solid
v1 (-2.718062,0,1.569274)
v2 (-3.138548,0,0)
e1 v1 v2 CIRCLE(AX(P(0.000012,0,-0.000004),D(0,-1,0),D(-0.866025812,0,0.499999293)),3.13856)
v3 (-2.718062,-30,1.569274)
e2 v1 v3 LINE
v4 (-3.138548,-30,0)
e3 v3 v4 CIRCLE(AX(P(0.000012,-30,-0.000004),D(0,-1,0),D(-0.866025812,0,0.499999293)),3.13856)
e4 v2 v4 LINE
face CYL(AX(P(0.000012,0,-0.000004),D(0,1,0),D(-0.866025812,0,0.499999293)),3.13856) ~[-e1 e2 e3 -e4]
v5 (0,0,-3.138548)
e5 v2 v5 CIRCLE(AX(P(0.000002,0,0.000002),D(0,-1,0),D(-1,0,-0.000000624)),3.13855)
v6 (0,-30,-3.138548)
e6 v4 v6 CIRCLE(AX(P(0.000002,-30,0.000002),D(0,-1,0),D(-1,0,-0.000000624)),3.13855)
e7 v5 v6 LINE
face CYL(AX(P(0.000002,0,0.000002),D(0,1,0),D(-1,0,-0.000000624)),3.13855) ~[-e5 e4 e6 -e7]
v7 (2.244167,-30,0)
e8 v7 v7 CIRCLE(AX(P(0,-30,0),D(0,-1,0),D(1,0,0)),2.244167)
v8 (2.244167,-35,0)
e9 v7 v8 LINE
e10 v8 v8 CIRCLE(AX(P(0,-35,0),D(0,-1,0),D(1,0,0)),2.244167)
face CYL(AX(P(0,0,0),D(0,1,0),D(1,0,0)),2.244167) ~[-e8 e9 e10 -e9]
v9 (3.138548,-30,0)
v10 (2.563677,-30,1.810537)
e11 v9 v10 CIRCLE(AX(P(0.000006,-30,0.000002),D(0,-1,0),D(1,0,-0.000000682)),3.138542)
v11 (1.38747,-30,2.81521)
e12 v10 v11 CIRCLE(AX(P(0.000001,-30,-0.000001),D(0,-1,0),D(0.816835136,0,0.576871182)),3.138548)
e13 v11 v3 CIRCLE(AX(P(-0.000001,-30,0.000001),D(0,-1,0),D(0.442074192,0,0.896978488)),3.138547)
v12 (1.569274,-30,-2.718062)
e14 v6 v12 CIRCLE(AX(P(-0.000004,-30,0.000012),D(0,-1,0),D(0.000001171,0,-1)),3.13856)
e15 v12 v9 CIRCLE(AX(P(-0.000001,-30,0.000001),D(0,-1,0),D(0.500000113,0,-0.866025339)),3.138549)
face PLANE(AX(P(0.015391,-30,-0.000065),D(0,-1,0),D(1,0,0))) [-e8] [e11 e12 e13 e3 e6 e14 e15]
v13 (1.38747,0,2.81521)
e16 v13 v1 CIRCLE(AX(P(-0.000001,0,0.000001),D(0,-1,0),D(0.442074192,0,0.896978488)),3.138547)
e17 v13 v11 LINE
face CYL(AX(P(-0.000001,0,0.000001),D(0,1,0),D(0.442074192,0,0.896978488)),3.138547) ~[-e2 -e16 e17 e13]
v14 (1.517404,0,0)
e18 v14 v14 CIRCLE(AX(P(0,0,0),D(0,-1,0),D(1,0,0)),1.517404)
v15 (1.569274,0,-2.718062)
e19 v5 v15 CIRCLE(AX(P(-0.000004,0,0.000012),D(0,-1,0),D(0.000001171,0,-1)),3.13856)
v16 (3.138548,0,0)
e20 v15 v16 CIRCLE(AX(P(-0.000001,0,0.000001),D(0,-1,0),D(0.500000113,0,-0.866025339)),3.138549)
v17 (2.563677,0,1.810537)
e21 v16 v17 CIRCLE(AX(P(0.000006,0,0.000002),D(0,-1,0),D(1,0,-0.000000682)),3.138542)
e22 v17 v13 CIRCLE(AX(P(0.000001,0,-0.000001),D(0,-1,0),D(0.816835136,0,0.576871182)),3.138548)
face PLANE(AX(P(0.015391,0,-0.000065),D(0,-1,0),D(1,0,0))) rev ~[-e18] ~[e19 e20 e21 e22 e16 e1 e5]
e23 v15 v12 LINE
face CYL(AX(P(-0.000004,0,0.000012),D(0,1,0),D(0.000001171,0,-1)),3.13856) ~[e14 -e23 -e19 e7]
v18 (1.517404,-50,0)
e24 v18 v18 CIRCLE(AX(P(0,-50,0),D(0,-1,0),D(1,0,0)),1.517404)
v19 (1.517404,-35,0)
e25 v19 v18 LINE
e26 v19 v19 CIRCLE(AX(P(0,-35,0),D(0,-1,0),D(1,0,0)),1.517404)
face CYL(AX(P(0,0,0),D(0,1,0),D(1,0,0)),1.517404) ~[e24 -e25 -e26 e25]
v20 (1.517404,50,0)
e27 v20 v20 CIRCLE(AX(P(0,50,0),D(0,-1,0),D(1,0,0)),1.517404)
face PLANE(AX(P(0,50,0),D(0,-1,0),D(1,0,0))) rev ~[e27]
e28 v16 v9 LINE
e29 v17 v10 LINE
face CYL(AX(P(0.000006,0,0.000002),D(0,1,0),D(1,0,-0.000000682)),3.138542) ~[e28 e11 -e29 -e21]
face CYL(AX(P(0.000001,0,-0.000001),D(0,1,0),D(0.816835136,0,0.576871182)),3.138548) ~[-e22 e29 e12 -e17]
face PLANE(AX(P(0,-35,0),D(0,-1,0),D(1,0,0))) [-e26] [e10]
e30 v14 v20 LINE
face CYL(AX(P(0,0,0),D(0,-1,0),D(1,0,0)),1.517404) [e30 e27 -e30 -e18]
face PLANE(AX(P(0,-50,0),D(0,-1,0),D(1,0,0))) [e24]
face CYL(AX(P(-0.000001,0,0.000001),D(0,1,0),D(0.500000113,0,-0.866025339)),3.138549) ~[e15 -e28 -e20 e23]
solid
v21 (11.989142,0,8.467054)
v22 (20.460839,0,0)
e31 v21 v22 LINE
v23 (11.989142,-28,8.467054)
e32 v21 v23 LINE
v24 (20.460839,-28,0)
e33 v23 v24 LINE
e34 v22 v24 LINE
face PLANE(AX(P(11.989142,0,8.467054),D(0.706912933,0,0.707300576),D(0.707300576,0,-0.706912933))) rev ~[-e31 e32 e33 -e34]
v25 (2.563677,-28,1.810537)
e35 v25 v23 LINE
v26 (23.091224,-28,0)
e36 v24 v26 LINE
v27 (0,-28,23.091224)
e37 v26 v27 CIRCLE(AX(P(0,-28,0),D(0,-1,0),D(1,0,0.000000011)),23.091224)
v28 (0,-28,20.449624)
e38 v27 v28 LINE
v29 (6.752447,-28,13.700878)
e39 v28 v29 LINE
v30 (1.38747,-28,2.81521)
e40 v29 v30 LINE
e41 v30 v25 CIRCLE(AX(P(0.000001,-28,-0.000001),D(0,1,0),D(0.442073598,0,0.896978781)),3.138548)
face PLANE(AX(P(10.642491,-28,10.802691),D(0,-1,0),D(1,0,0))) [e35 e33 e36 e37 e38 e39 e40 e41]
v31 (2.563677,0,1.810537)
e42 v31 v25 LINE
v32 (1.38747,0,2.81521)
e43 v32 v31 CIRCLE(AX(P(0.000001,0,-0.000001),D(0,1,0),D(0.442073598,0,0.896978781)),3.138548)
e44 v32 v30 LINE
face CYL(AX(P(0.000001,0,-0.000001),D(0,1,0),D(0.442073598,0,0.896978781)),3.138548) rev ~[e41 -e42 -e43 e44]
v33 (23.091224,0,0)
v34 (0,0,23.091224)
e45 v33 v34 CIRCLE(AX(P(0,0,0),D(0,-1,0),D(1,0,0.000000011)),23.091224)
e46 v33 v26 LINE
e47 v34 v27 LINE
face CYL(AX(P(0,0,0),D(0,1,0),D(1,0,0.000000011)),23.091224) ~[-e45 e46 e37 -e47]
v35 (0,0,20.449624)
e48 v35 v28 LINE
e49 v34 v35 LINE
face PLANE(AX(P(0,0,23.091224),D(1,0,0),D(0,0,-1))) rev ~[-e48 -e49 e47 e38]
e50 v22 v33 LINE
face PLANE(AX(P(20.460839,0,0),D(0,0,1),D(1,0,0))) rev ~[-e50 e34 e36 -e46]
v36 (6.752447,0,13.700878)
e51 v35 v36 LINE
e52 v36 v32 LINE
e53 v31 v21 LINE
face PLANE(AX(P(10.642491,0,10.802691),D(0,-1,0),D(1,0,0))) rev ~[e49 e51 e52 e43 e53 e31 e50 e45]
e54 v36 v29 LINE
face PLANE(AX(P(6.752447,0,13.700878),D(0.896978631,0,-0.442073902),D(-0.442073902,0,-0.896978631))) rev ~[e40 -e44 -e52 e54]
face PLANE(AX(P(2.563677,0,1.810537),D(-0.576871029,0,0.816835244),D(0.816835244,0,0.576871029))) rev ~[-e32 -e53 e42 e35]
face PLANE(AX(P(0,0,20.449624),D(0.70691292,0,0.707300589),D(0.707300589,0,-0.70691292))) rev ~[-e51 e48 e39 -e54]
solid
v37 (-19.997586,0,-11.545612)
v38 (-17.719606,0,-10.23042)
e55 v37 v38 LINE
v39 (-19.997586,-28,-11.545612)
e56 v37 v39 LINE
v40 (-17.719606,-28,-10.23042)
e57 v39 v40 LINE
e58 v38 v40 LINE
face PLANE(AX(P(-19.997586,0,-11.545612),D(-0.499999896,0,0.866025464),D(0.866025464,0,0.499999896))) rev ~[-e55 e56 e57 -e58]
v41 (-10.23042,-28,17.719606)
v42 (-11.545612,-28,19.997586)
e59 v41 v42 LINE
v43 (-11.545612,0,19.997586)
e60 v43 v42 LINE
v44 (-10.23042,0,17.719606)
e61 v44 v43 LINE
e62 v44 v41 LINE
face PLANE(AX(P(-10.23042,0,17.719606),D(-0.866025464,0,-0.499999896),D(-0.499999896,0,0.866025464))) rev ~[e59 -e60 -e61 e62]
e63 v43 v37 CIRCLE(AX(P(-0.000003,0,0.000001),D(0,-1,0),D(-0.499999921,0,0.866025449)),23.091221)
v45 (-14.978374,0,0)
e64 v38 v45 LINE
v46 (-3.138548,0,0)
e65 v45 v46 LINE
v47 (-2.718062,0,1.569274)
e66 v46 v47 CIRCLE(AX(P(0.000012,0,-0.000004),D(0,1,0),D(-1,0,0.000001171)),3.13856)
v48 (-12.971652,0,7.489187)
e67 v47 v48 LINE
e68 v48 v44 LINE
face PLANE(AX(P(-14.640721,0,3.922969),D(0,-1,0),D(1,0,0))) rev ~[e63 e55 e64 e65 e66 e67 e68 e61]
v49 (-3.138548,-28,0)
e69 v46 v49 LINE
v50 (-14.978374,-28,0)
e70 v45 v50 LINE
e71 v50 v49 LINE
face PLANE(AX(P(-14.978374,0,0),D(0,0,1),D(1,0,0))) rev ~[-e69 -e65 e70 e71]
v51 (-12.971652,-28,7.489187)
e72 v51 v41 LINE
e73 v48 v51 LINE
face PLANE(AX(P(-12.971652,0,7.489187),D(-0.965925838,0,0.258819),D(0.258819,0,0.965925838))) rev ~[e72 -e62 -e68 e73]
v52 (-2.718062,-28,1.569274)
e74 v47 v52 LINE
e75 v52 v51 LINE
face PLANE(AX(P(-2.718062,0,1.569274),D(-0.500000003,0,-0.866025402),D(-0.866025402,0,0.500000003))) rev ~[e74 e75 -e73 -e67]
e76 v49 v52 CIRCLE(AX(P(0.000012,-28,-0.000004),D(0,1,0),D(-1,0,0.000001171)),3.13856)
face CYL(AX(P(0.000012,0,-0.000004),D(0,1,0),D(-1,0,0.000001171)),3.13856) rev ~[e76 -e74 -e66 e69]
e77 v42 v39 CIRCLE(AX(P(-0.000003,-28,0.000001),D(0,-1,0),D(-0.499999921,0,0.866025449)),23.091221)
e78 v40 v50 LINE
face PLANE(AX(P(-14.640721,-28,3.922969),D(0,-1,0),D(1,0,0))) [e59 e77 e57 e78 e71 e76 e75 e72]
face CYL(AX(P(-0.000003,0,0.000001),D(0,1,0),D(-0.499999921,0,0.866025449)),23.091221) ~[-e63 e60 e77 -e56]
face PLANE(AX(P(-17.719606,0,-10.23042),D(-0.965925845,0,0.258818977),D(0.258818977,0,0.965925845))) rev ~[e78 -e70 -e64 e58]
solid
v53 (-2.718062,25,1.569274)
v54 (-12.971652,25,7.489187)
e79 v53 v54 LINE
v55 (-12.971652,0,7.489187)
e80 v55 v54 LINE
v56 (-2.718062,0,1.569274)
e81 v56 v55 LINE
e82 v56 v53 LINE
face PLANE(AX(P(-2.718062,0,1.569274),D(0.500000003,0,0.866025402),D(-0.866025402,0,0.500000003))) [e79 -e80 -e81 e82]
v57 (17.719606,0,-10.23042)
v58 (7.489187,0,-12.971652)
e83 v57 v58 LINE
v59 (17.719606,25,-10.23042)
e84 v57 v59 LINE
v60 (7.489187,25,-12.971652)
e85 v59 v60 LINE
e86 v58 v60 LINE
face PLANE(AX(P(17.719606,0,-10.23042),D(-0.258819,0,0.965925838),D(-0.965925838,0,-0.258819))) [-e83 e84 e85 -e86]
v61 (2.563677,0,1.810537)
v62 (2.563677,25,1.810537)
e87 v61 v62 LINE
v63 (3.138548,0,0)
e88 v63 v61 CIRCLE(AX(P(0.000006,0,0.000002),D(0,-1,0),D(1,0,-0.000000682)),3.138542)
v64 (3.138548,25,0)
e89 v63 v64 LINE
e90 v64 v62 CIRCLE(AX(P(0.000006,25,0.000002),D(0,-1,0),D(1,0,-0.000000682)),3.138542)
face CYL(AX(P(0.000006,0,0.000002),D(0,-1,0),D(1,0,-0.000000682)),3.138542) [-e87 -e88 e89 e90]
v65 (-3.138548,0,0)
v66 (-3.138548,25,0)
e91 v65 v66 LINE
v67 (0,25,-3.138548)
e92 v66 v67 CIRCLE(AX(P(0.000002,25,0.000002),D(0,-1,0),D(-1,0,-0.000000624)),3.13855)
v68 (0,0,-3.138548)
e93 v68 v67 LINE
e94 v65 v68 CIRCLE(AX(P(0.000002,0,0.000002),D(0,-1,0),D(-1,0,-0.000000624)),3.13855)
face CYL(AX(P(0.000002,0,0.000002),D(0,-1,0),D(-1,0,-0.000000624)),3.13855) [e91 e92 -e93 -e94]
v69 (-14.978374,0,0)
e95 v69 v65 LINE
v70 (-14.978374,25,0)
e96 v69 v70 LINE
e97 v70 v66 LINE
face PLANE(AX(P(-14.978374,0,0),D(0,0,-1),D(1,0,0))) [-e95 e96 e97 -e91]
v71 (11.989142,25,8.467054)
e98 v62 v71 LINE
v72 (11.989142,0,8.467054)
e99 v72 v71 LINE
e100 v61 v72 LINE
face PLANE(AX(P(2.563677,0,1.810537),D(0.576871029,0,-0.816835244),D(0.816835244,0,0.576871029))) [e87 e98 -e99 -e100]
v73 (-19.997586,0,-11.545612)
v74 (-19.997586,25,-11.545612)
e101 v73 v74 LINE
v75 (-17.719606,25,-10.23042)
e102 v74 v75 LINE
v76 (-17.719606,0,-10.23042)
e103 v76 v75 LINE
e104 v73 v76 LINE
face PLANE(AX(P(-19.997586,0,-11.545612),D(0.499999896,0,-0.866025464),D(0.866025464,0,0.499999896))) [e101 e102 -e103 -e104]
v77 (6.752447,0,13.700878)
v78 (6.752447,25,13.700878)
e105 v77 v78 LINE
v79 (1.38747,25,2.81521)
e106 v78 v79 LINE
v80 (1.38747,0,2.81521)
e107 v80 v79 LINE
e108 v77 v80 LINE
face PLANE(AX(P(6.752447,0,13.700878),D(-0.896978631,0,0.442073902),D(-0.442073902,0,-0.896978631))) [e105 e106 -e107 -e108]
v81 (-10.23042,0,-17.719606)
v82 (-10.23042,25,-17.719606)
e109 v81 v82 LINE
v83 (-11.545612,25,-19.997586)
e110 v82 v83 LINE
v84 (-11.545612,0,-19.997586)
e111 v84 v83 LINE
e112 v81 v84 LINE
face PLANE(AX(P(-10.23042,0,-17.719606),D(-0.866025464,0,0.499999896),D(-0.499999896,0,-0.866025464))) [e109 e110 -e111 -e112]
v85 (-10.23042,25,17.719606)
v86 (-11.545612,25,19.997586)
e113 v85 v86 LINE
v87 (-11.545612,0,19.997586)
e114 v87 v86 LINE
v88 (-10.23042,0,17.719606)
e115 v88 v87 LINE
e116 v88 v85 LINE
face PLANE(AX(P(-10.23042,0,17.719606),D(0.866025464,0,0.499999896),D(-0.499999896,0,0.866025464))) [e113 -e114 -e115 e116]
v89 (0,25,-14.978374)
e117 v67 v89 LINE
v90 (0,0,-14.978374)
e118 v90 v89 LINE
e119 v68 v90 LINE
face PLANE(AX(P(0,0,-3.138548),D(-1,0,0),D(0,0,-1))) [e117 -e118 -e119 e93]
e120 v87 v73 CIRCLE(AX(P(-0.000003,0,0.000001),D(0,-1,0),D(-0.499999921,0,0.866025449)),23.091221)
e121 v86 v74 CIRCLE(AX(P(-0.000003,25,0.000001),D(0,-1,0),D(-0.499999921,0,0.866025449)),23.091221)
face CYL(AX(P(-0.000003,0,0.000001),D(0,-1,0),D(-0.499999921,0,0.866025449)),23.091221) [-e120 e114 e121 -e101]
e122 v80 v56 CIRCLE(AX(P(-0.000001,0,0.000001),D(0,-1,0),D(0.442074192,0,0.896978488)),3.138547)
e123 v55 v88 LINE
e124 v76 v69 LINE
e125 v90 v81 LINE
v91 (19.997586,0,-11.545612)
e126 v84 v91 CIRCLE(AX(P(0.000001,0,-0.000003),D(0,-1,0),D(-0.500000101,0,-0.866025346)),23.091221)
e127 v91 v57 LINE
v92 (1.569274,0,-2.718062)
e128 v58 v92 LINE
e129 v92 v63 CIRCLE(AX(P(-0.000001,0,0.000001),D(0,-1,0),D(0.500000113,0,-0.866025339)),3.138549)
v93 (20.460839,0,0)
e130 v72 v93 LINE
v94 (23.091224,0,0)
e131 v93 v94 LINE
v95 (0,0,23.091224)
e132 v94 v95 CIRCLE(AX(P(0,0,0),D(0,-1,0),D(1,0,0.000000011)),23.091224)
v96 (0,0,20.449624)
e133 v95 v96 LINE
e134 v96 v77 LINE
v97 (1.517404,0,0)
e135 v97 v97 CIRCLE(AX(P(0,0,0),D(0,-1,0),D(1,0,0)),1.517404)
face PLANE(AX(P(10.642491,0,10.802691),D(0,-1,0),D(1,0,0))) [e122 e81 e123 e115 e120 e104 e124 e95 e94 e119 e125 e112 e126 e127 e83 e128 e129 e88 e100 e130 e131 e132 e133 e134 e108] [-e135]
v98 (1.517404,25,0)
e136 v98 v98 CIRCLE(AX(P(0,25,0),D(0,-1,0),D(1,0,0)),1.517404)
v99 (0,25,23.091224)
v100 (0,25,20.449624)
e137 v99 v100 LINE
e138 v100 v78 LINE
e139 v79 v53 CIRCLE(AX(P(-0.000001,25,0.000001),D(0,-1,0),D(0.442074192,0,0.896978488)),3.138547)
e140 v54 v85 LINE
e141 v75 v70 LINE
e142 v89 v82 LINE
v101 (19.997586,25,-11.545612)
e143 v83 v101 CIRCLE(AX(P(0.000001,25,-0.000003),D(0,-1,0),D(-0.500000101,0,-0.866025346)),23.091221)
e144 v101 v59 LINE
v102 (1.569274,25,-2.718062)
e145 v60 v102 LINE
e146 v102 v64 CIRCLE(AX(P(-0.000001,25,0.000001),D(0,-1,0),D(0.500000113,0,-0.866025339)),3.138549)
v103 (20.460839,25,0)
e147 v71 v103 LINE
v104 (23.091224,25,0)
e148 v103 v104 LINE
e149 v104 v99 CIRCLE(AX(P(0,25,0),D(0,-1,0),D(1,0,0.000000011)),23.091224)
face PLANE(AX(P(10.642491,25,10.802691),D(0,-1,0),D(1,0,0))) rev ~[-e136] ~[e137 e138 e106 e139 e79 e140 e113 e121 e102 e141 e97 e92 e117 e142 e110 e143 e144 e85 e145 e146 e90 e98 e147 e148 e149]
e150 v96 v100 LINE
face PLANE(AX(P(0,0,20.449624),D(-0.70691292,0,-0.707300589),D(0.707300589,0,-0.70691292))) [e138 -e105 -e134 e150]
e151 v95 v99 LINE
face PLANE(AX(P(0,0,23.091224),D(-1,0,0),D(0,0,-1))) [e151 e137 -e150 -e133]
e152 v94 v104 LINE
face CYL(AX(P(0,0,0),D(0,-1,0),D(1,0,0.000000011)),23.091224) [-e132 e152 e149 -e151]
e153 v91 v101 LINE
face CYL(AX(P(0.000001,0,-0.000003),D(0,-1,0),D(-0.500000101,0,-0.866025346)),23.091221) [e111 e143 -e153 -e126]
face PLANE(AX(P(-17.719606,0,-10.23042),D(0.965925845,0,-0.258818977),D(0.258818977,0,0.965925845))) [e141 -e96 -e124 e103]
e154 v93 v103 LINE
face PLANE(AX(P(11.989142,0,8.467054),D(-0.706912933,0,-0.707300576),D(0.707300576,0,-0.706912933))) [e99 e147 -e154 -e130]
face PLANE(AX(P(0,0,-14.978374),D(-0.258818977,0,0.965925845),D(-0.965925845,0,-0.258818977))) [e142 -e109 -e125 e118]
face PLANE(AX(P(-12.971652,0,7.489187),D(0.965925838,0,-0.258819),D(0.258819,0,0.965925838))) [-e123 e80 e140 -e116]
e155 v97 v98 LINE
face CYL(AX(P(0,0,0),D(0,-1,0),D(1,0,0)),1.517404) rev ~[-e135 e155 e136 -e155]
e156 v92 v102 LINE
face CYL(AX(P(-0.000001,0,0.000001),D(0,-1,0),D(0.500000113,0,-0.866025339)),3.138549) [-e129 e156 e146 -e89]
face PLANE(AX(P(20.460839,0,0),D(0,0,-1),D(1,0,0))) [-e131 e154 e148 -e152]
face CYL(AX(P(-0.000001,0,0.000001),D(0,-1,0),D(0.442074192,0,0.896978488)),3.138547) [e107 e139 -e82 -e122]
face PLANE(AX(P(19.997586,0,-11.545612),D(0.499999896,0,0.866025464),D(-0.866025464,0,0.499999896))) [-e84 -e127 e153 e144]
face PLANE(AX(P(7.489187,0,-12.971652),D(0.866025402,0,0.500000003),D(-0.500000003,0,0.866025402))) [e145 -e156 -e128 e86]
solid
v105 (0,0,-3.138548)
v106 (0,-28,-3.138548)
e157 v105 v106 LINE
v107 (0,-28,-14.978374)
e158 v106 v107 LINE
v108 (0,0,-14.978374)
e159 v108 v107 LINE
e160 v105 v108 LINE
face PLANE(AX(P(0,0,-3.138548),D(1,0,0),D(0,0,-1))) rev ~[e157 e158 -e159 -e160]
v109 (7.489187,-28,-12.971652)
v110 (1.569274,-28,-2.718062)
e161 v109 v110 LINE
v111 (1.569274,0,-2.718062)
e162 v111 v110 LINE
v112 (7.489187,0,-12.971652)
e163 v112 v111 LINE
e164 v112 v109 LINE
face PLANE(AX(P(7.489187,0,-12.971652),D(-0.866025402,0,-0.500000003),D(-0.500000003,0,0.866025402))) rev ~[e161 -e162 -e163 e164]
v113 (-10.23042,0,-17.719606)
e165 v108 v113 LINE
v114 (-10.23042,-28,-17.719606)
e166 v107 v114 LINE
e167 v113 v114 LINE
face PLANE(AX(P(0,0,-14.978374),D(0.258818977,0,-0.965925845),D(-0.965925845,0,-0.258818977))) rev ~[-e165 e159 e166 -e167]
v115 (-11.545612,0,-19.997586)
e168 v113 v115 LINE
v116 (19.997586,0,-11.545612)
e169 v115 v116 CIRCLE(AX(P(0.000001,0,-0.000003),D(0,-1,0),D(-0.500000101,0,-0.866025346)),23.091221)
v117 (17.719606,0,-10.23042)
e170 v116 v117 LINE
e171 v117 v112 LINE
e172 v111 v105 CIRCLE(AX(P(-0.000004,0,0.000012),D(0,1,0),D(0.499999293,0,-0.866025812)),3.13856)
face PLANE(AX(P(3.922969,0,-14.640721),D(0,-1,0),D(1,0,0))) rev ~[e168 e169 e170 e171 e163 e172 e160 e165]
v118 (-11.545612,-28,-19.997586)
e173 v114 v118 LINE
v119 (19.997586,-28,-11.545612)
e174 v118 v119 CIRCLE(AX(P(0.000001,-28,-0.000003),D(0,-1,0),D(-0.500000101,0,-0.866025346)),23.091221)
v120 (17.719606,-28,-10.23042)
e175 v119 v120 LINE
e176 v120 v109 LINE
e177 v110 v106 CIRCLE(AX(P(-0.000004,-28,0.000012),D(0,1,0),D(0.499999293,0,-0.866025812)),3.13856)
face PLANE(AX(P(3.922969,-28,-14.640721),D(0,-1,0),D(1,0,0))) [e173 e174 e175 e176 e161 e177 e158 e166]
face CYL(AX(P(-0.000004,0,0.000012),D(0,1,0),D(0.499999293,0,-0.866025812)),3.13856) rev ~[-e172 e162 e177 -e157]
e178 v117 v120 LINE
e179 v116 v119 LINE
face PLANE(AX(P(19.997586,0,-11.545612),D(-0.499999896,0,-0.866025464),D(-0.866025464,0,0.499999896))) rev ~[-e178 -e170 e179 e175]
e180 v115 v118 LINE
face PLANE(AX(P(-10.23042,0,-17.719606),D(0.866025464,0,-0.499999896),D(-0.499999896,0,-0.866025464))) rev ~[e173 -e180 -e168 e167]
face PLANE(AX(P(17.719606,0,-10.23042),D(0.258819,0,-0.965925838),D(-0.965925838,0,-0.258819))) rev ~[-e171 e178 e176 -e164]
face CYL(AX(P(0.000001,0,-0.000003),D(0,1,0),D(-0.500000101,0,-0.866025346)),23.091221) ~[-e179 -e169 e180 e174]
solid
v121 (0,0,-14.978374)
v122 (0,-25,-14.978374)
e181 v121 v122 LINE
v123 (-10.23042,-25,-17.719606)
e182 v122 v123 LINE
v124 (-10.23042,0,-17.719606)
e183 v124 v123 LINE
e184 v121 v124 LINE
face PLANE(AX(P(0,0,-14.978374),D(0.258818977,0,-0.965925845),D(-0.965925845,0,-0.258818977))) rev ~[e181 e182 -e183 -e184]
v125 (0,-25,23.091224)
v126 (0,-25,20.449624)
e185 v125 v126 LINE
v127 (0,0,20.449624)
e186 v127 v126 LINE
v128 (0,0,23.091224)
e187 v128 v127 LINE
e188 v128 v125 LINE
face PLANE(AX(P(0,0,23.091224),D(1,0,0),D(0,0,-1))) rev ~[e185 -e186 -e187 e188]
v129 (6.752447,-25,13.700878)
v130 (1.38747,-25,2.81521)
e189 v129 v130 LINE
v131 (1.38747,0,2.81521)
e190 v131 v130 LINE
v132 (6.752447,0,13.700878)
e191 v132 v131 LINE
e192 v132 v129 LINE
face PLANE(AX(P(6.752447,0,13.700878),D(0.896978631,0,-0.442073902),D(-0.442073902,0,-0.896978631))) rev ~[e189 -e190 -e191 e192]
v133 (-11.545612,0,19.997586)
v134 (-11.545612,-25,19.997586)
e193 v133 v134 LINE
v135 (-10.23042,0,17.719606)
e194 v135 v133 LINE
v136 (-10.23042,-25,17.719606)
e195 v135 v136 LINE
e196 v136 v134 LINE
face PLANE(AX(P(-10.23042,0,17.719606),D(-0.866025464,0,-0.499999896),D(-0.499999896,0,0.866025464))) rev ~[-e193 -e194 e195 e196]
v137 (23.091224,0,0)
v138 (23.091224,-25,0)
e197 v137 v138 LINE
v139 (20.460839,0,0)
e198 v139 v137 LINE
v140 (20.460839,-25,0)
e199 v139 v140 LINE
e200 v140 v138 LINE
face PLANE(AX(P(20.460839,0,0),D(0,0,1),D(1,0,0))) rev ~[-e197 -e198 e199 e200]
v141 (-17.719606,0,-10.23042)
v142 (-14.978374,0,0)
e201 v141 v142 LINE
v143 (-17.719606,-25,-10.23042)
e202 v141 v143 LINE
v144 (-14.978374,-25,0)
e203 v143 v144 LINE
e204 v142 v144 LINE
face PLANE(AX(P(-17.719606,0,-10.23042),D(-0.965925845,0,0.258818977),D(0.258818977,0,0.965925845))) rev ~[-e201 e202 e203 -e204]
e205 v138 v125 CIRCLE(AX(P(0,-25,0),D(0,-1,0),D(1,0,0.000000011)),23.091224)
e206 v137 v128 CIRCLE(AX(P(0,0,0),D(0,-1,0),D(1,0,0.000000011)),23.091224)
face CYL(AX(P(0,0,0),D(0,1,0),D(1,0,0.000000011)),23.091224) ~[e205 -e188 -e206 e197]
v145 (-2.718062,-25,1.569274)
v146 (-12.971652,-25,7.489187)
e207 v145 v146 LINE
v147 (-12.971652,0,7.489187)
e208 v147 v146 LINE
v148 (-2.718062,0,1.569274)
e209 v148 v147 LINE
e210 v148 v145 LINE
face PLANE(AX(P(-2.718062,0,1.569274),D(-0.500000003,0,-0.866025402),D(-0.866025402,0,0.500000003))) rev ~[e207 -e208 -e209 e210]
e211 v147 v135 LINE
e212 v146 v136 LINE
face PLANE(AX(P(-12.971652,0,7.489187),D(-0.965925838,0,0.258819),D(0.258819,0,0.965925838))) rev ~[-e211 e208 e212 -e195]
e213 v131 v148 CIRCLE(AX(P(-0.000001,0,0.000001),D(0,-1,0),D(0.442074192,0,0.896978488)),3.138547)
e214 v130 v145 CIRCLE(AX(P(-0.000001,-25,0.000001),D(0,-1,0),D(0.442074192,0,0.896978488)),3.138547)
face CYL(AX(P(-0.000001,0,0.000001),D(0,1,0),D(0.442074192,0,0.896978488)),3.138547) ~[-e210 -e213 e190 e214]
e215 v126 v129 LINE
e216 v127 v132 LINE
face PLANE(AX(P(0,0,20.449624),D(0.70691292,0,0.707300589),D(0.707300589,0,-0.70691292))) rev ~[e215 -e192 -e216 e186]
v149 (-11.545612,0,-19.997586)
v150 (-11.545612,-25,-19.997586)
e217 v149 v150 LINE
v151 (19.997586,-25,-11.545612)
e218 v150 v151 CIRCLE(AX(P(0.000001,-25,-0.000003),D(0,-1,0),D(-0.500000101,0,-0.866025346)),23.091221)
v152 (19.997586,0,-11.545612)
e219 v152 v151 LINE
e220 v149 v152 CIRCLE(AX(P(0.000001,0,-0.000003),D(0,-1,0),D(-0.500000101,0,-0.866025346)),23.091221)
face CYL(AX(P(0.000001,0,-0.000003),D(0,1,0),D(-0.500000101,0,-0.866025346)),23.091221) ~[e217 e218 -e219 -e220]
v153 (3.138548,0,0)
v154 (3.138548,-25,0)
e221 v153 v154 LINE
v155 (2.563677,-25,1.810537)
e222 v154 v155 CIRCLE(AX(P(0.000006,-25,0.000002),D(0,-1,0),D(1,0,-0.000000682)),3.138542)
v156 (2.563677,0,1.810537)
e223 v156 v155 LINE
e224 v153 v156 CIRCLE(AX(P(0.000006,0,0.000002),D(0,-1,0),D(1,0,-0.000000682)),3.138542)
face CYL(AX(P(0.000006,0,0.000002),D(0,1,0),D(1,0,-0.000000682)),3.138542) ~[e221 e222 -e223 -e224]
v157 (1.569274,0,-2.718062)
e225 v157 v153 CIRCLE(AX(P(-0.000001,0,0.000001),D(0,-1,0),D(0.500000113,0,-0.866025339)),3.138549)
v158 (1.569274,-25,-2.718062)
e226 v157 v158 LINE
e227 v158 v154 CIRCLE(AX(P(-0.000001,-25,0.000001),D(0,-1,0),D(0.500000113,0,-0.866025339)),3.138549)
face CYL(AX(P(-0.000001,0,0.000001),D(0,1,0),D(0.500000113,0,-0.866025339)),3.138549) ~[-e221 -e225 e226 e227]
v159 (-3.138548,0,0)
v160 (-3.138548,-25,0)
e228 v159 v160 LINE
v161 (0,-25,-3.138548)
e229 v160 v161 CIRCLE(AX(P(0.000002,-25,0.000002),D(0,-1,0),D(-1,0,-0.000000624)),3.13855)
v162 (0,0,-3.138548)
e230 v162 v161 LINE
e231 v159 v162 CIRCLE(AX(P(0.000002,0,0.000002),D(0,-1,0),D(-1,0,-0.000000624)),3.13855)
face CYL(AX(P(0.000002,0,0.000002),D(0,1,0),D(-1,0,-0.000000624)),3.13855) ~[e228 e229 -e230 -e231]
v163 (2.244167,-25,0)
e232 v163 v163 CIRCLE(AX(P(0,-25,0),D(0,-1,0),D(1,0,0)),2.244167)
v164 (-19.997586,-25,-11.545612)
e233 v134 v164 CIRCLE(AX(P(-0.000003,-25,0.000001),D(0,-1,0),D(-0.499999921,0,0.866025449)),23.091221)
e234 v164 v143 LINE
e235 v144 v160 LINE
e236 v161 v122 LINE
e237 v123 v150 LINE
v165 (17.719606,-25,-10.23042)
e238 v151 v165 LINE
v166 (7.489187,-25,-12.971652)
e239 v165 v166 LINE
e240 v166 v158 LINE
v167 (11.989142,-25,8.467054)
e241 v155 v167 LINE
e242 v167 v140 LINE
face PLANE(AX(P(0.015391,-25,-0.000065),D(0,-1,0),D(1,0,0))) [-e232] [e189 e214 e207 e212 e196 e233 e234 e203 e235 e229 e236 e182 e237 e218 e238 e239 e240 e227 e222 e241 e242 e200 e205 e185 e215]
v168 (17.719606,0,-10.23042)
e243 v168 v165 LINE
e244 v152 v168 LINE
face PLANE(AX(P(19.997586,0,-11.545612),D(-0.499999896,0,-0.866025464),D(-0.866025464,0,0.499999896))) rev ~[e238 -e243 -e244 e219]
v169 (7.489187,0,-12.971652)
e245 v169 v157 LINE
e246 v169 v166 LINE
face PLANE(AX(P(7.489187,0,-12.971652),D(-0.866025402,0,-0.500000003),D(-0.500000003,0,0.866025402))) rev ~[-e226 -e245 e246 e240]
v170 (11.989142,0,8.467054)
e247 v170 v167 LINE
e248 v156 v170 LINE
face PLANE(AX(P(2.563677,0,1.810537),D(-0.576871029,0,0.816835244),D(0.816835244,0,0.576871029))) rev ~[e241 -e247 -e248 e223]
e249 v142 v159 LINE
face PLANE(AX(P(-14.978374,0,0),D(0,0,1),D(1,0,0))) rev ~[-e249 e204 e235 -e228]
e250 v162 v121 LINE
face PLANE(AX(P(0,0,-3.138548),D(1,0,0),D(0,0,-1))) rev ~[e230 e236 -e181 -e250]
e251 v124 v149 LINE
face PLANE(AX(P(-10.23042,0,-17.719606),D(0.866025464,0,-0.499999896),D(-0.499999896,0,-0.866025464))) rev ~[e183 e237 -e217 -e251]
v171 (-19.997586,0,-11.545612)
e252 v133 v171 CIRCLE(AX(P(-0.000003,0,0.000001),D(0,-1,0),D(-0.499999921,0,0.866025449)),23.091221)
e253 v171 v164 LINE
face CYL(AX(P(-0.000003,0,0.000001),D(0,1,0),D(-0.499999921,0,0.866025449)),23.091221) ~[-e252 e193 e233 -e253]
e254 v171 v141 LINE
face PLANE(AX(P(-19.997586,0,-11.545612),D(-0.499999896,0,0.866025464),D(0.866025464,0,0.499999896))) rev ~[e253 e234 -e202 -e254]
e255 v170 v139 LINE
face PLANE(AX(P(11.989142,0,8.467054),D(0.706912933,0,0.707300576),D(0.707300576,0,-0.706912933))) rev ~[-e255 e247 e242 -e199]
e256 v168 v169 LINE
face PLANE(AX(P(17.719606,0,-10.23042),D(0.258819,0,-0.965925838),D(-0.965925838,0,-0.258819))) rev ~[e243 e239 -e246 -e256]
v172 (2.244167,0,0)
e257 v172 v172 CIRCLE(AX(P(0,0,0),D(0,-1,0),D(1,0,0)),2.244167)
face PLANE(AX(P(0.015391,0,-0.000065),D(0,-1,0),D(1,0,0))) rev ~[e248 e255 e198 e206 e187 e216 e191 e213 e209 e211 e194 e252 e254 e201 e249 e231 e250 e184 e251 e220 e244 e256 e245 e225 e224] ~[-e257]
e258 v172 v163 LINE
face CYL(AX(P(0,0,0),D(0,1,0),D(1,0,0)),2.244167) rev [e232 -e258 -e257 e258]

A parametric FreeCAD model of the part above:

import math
import FreeCAD as App
import Part
import Sketcher
Q = App.Units.Quantity

doc = App.newDocument("Part")
body = doc.addObject("PartDesign::Body", "Body")
body.AllowCompound = True

# Sketch on XZ plane
sketch1 = body.newObject("Sketcher::SketchObject", "Sketch")
sketch1.AttachmentSupport = (doc.getObject("XZ_Plane"), [""])
sketch1.MapMode = "FlatFace"
sketch1.addGeometry([
    Part.ArcOfCircle(Part.Circle(App.Vector(0, 0, 0), App.Vector(0, 0, 1), 3.1), math.radians(150), math.radians(180)),  # 0
    Part.LineSegment(App.Vector(-2.7, 1.6, 0), App.Vector(-13, 7.5, 0)),  # 1
    Part.LineSegment(App.Vector(-13, 7.5, 0), App.Vector(-10.2, 17.7, 0)),  # 2
    Part.LineSegment(App.Vector(-10.2, 17.7, 0), App.Vector(-11.5, 20, 0)),  # 3
    Part.ArcOfCircle(Part.Circle(App.Vector(0, 0, 0), App.Vector(0, 0, 1), 23.1), math.radians(120), math.radians(210)),  # 4
    Part.LineSegment(App.Vector(-20, -11.5, 0), App.Vector(-17.7, -10.2, 0)),  # 5
    Part.LineSegment(App.Vector(-17.7, -10.2, 0), App.Vector(-15, 0, 0)),  # 6
    Part.LineSegment(App.Vector(-15, 0, 0), App.Vector(-3.1, 0, 0)),  # 7
    Part.ArcOfCircle(Part.Circle(App.Vector(0, 0, 0), App.Vector(0, 0, 1), 3.1), math.radians(35), math.radians(64)),  # 8
    Part.LineSegment(App.Vector(2.6, 1.8, 0), App.Vector(12, 8.5, 0)),  # 9
    Part.LineSegment(App.Vector(12, 8.5, 0), App.Vector(20.5, 0, 0)),  # 10
    Part.LineSegment(App.Vector(20.5, 0, 0), App.Vector(23.1, 0, 0)),  # 11
    Part.ArcOfCircle(Part.Circle(App.Vector(0, 0, 0), App.Vector(0, 0, 1), 23.1), math.radians(0), math.radians(90)),  # 12
    Part.LineSegment(App.Vector(0, 23.1, 0), App.Vector(0, 20.4, 0)),  # 13
    Part.LineSegment(App.Vector(0, 20.4, 0), App.Vector(6.8, 13.7, 0)),  # 14
    Part.LineSegment(App.Vector(6.8, 13.7, 0), App.Vector(1.4, 2.8, 0)),  # 15
    Part.LineSegment(App.Vector(7.5, -13, 0), App.Vector(1.6, -2.7, 0)),  # 16
    Part.ArcOfCircle(Part.Circle(App.Vector(0, 0, 0), App.Vector(0, 0, 1), 3.1), math.radians(-90), math.radians(-60)),  # 17
    Part.LineSegment(App.Vector(0, -3.1, 0), App.Vector(0, -15, 0)),  # 18
    Part.LineSegment(App.Vector(0, -15, 0), App.Vector(-10.2, -17.7, 0)),  # 19
    Part.LineSegment(App.Vector(-10.2, -17.7, 0), App.Vector(-11.5, -20, 0)),  # 20
    Part.ArcOfCircle(Part.Circle(App.Vector(0, 0, 0), App.Vector(0, 0, 1), 23.1), math.radians(-120), math.radians(-30)),  # 21
    Part.LineSegment(App.Vector(20, -11.5, 0), App.Vector(17.7, -10.2, 0)),  # 22
    Part.LineSegment(App.Vector(17.7, -10.2, 0), App.Vector(7.5, -13, 0)),  # 23
], False)
sketch1.addConstraint([
    Sketcher.Constraint("Coincident", 0, 1, 1, 1),
    Sketcher.Constraint("Coincident", 1, 2, 2, 1),
    Sketcher.Constraint("Coincident", 2, 2, 3, 1),
    Sketcher.Constraint("Coincident", 3, 2, 4, 1),
    Sketcher.Constraint("Coincident", 4, 2, 5, 1),
    Sketcher.Constraint("Coincident", 5, 2, 6, 1),
    Sketcher.Constraint("Coincident", 6, 2, 7, 1),
    Sketcher.Constraint("Coincident", 7, 2, 0, 2),
    Sketcher.Constraint("Coincident", 8, 1, 9, 1),
    Sketcher.Constraint("Coincident", 9, 2, 10, 1),
    Sketcher.Constraint("Coincident", 10, 2, 11, 1),
    Sketcher.Constraint("Coincident", 11, 2, 12, 1),
    Sketcher.Constraint("Coincident", 12, 2, 13, 1),
    Sketcher.Constraint("Coincident", 13, 2, 14, 1),
    Sketcher.Constraint("Coincident", 14, 2, 15, 1),
    Sketcher.Constraint("Coincident", 15, 2, 8, 2),
    Sketcher.Constraint("Coincident", 16, 2, 17, 2),
    Sketcher.Constraint("Coincident", 17, 1, 18, 1),
    Sketcher.Constraint("Coincident", 18, 2, 19, 1),
    Sketcher.Constraint("Coincident", 19, 2, 20, 1),
    Sketcher.Constraint("Coincident", 20, 2, 21, 1),
    Sketcher.Constraint("Coincident", 21, 2, 22, 1),
    Sketcher.Constraint("Coincident", 22, 2, 23, 1),
    Sketcher.Constraint("Coincident", 23, 2, 16, 1),
    Sketcher.Constraint("Horizontal", 7),
    Sketcher.Constraint("Horizontal", 11),
    Sketcher.Constraint("Vertical", 13),
    Sketcher.Constraint("Vertical", 18),
    Sketcher.Constraint("Coincident", 4, 3, -1, 1),
    Sketcher.Constraint("Coincident", 8, 3, -1, 1),
    Sketcher.Constraint("Coincident", 12, 3, -1, 1),
    Sketcher.Constraint("Coincident", 21, 3, -1, 1),
    Sketcher.Constraint("Equal", 0, 17),
    Sketcher.Constraint("Equal", 4, 21),
    Sketcher.Constraint("Symmetric", 5, 2, 22, 2, -2),
    Sketcher.Constraint("Symmetric", 2, 2, 19, 2, -1),
    Sketcher.Constraint("PointOnObject", 6, 2, -1),
    Sketcher.Constraint("PointOnObject", 10, 2, -1),
    Sketcher.Constraint("PointOnObject", 12, 2, -2),
    Sketcher.Constraint("PointOnObject", 17, 1, -2),
    Sketcher.Constraint("Perpendicular", 3, 5),
    Sketcher.Constraint("Parallel", 2, 6),
    Sketcher.Constraint("Parallel", 10, 14),
    Sketcher.Constraint("Perpendicular", 5, 16),
    Sketcher.Constraint("Perpendicular", 1, 20),
    Sketcher.Constraint("Perpendicular", 20, 22),
    Sketcher.Constraint("Parallel", 19, 23),
    Sketcher.Constraint("Horizontal", 0, 3, 21, 3),
    Sketcher.Constraint("Horizontal", 4, 2, 21, 2),
    Sketcher.Constraint("Vertical", 4, 3, 17, 3),
    Sketcher.Constraint("Equal", 7, 18),
    Sketcher.Constraint("Equal", 3, 5),
    Sketcher.Constraint("Equal", 2, 6),
    Sketcher.Constraint("Equal", 1, 16),
    Sketcher.Constraint("Equal", 6, 19),
    Sketcher.Constraint("Equal", 19, 23),
    Sketcher.Constraint("Angle", 1, Q("150 deg")),
    Sketcher.Constraint("Angle", 2, Q("75.000003 deg")),
    Sketcher.Constraint("Radius", 0, 3.13856),
    Sketcher.Constraint("Radius", 4, 23.091221),
    Sketcher.Constraint("DistanceY", 13, 2, 13, 1, 2.6416),
    Sketcher.Constraint("Radius", 8, 3.138548),
    Sketcher.Constraint("Radius", 12, 23.091224),
    Sketcher.Constraint("DistanceY", 1, 2, 3, 2, 12.508399),
    Sketcher.Constraint("DistanceY", 17, 3, 15, 2, 2.815198),
    Sketcher.Constraint("Distance", 2, 10.591309),
    Sketcher.Constraint("DistanceX", 7, 1, 7, 2, 11.839826),
    Sketcher.Constraint("DistanceX", 11, 1, 11, 2, 2.630385),
    Sketcher.Constraint("DistanceX", -1, 1, 9, 2, 11.989142),
    Sketcher.Constraint("DistanceY", 0, 3, 8, 1, 1.810541),
    Sketcher.Constraint("DistanceY", 9, 2, 12, 2, 14.62417),
    Sketcher.Constraint("DistanceX", 8, 1, 14, 2, 4.18877),
])
pad1 = body.newObject("PartDesign::Pad", "Pad")
pad1.Profile = sketch1
pad1.Length = 28
body2 = doc.addObject("PartDesign::Body", "Body001")

# Sketch on XZ plane
sketch2 = body2.newObject("Sketcher::SketchObject", "Sketch001")
sketch2.AttachmentSupport = (doc.getObject("XZ_Plane001"), [""])
sketch2.MapMode = "FlatFace"
sketch2.addGeometry([
    Part.ArcOfCircle(Part.Circle(App.Vector(-0.000001, 0.000001, 0), App.Vector(0, 0, 1), 3.138549), math.radians(-59.999993), math.radians(-0.000013)),  # 0
    Part.ArcOfCircle(Part.Circle(App.Vector(0.000006, 0.000002, 0), App.Vector(0, 0, 1), 3.138542), math.radians(-0.000039), math.radians(35.230792)),  # 1
    Part.ArcOfCircle(Part.Circle(App.Vector(0.000001, -0.000001, 0), App.Vector(0, 0, 1), 3.138548), math.radians(35.230778), math.radians(63.76374)),  # 2
    Part.ArcOfCircle(Part.Circle(App.Vector(-0.000001, 0.000001, 0), App.Vector(0, 0, 1), 3.138547), math.radians(63.763702), math.radians(150.00001)),  # 3
    Part.ArcOfCircle(Part.Circle(App.Vector(0.000012, -0.000004, 0), App.Vector(0, 0, 1), 3.13856), math.radians(150.000047), math.radians(179.999933)),  # 4
    Part.ArcOfCircle(Part.Circle(App.Vector(0.000002, 0.000002, 0), App.Vector(0, 0, 1), 3.13855), math.radians(-179.999964), math.radians(-90.000036)),  # 5
    Part.ArcOfCircle(Part.Circle(App.Vector(-0.000004, 0.000012, 0), App.Vector(0, 0, 1), 3.13856), math.radians(-89.999933), math.radians(-60.000047)),  # 6
    Part.Circle(App.Vector(0, 0, 0), App.Vector(0, 0, 1), 2.244167),  # 7
], False)
sketch2.addConstraint([
    Sketcher.Constraint("Coincident", 0, 2, 1, 1),
    Sketcher.Constraint("Coincident", 1, 2, 2, 1),
    Sketcher.Constraint("Coincident", 2, 2, 3, 1),
    Sketcher.Constraint("Coincident", 3, 2, 4, 1),
    Sketcher.Constraint("Coincident", 4, 2, 5, 1),
    Sketcher.Constraint("Coincident", 5, 2, 6, 1),
    Sketcher.Constraint("Coincident", 6, 2, 0, 1),
    Sketcher.Constraint("Coincident", 0, 3, -1, 1),
    Sketcher.Constraint("Coincident", 1, 3, -1, 1),
    Sketcher.Constraint("Coincident", 2, 3, -1, 1),
    Sketcher.Constraint("Coincident", 3, 3, -1, 1),
    Sketcher.Constraint("Coincident", 5, 3, -1, 1),
    Sketcher.Constraint("Coincident", 7, 3, -1, 1),
    Sketcher.Constraint("Coincident", 4, 3, 1, 3),
    Sketcher.Constraint("PointOnObject", 0, 2, -1),
    Sketcher.Constraint("PointOnObject", 4, 2, -1),
    Sketcher.Constraint("PointOnObject", 5, 2, -2),
    Sketcher.Constraint("Radius", 0, 3.138549),
    Sketcher.Constraint("Radius", 6, 3.13856),
    Sketcher.Constraint("Diameter", 7, 4.488334),
    Sketcher.Constraint("DistanceY", 6, 3, 2, 2, 2.815198),
    Sketcher.Constraint("DistanceY", 6, 2, -1, 1, 2.718062),
    Sketcher.Constraint("DistanceX", 1, 2, 0, 2, 0.574871),
    Sketcher.Constraint("DistanceX", 3, 2, 6, 3, 2.718058),
])
pad2 = body2.newObject("PartDesign::Pad", "Pad001")
pad2.Profile = sketch2
pad2.Length = 30

# Sketch on XZ plane
sketch3 = body2.newObject("Sketcher::SketchObject", "Sketch002")
sketch3.AttachmentSupport = (doc.getObject("XZ_Plane001"), [""])
sketch3.MapMode = "FlatFace"
sketch3.addGeometry([
    Part.Circle(App.Vector(0, 0, 0), App.Vector(0, 0, 1), 2.2),
    Part.Circle(App.Vector(0, 0, 0), App.Vector(0, 0, 1), 1.5),
], False)
sketch3.addConstraint([
    Sketcher.Constraint("Coincident", 0, 3, -1, 1),
    Sketcher.Constraint("Coincident", 1, 3, -1, 1),
    Sketcher.Constraint("Diameter", 1, 3.034808),
    Sketcher.Constraint("Diameter", 0, 4.488334),
])
pad3 = body2.newObject("PartDesign::Pad", "Pad002")
pad3.Profile = sketch3
pad3.Length = 35

# Sketch on XZ plane
sketch4 = body2.newObject("Sketcher::SketchObject", "Sketch003")
sketch4.AttachmentSupport = (doc.getObject("XZ_Plane001"), [""])
sketch4.MapMode = "FlatFace"
sketch4.addGeometry(Part.Circle(App.Vector(0, 0, 0), App.Vector(0, 0, 1), 1.5), False)
sketch4.addConstraint([
    Sketcher.Constraint("Coincident", 0, 3, -1, 1),
    Sketcher.Constraint("Diameter", 0, 3.034808),
])
pad4 = body2.newObject("PartDesign::Pad", "Pad003")
pad4.Profile = sketch4
pad4.Length = 50

# Sketch on XZ plane
sketch5 = body2.newObject("Sketcher::SketchObject", "Sketch004")
sketch5.AttachmentSupport = (doc.getObject("XZ_Plane001"), [""])
sketch5.MapMode = "FlatFace"
sketch5.addGeometry(Part.Circle(App.Vector(0, 0, 0), App.Vector(0, 0, 1), 1.5), False)
sketch5.addConstraint([
    Sketcher.Constraint("Coincident", 0, 3, -1, 1),
    Sketcher.Constraint("Diameter", 0, 3.034808),
])
pad5 = body2.newObject("PartDesign::Pad", "Pad004")
pad5.Profile = sketch5
pad5.Length = 50
pad5.Reversed = True
body3 = doc.addObject("PartDesign::Body", "Body002")

# Sketch on XZ plane
sketch6 = body3.newObject("Sketcher::SketchObject", "Sketch005")
sketch6.AttachmentSupport = (doc.getObject("XZ_Plane002"), [""])
sketch6.MapMode = "FlatFace"
sketch6.addGeometry([
    Part.LineSegment(App.Vector(2.6, 1.8, 0), App.Vector(12, 8.5, 0)),  # 0
    Part.LineSegment(App.Vector(12, 8.5, 0), App.Vector(20.5, 0, 0)),  # 1
    Part.LineSegment(App.Vector(20.5, 0, 0), App.Vector(23.1, 0, 0)),  # 2
    Part.ArcOfCircle(Part.Circle(App.Vector(0, 0, 0), App.Vector(0, 0, 1), 23.1), math.radians(0), math.radians(90)),  # 3
    Part.LineSegment(App.Vector(0, 23.1, 0), App.Vector(0, 20.4, 0)),  # 4
    Part.LineSegment(App.Vector(0, 20.4, 0), App.Vector(6.8, 13.7, 0)),  # 5
    Part.LineSegment(App.Vector(6.8, 13.7, 0), App.Vector(1.4, 2.8, 0)),  # 6
    Part.ArcOfCircle(Part.Circle(App.Vector(0, 0, 0), App.Vector(0, 0, 1), 3.1), math.radians(64), math.radians(150)),  # 7
    Part.LineSegment(App.Vector(-2.7, 1.6, 0), App.Vector(-13, 7.5, 0)),  # 8
    Part.LineSegment(App.Vector(-13, 7.5, 0), App.Vector(-10.2, 17.7, 0)),  # 9
    Part.LineSegment(App.Vector(-10.2, 17.7, 0), App.Vector(-11.5, 20, 0)),  # 10
    Part.ArcOfCircle(Part.Circle(App.Vector(0, 0, 0), App.Vector(0, 0, 1), 23.1), math.radians(120), math.radians(210)),  # 11
    Part.LineSegment(App.Vector(-20, -11.5, 0), App.Vector(-17.7, -10.2, 0)),  # 12
    Part.LineSegment(App.Vector(-17.7, -10.2, 0), App.Vector(-15, 0, 0)),  # 13
    Part.LineSegment(App.Vector(-15, 0, 0), App.Vector(-3.1, 0, 0)),  # 14
    Part.ArcOfCircle(Part.Circle(App.Vector(0, 0, 0), App.Vector(0, 0, 1), 3.1), math.radians(-180), math.radians(-90)),  # 15
    Part.LineSegment(App.Vector(0, -3.1, 0), App.Vector(0, -15, 0)),  # 16
    Part.LineSegment(App.Vector(0, -15, 0), App.Vector(-10.2, -17.7, 0)),  # 17
    Part.LineSegment(App.Vector(-10.2, -17.7, 0), App.Vector(-11.5, -20, 0)),  # 18
    Part.ArcOfCircle(Part.Circle(App.Vector(0, 0, 0), App.Vector(0, 0, 1), 23.1), math.radians(-120), math.radians(-30)),  # 19
    Part.LineSegment(App.Vector(20, -11.5, 0), App.Vector(17.7, -10.2, 0)),  # 20
    Part.LineSegment(App.Vector(17.7, -10.2, 0), App.Vector(7.5, -13, 0)),  # 21
    Part.LineSegment(App.Vector(7.5, -13, 0), App.Vector(1.6, -2.7, 0)),  # 22
    Part.ArcOfCircle(Part.Circle(App.Vector(0, 0, 0), App.Vector(0, 0, 1), 3.1), math.radians(-60), math.radians(0)),  # 23
    Part.ArcOfCircle(Part.Circle(App.Vector(0, 0, 0), App.Vector(0, 0, 1), 3.1), math.radians(0), math.radians(35)),  # 24
    Part.Circle(App.Vector(0, 0, 0), App.Vector(0, 0, 1), 1.5),  # 25
], False)
sketch6.addConstraint([
    Sketcher.Constraint("Coincident", 0, 2, 1, 1),
    Sketcher.Constraint("Coincident", 1, 2, 2, 1),
    Sketcher.Constraint("Coincident", 2, 2, 3, 1),
    Sketcher.Constraint("Coincident", 3, 2, 4, 1),
    Sketcher.Constraint("Coincident", 4, 2, 5, 1),
    Sketcher.Constraint("Coincident", 5, 2, 6, 1),
    Sketcher.Constraint("Coincident", 6, 2, 7, 1),
    Sketcher.Constraint("Coincident", 7, 2, 8, 1),
    Sketcher.Constraint("Coincident", 8, 2, 9, 1),
    Sketcher.Constraint("Coincident", 9, 2, 10, 1),
    Sketcher.Constraint("Coincident", 10, 2, 11, 1),
    Sketcher.Constraint("Coincident", 11, 2, 12, 1),
    Sketcher.Constraint("Coincident", 12, 2, 13, 1),
    Sketcher.Constraint("Coincident", 13, 2, 14, 1),
    Sketcher.Constraint("Coincident", 14, 2, 15, 1),
    Sketcher.Constraint("Coincident", 15, 2, 16, 1),
    Sketcher.Constraint("Coincident", 16, 2, 17, 1),
    Sketcher.Constraint("Coincident", 17, 2, 18, 1),
    Sketcher.Constraint("Coincident", 18, 2, 19, 1),
    Sketcher.Constraint("Coincident", 19, 2, 20, 1),
    Sketcher.Constraint("Coincident", 20, 2, 21, 1),
    Sketcher.Constraint("Coincident", 21, 2, 22, 1),
    Sketcher.Constraint("Coincident", 22, 2, 23, 1),
    Sketcher.Constraint("Tangent", 23, 2, 24, 1),
    Sketcher.Constraint("Coincident", 24, 2, 0, 1),
    Sketcher.Constraint("Horizontal", 2),
    Sketcher.Constraint("Vertical", 4),
    Sketcher.Constraint("Horizontal", 14),
    Sketcher.Constraint("Vertical", 16),
    Sketcher.Constraint("Coincident", 3, 3, -1, 1),
    Sketcher.Constraint("Coincident", 7, 3, -1, 1),
    Sketcher.Constraint("Coincident", 11, 3, -1, 1),
    Sketcher.Constraint("Coincident", 15, 3, -1, 1),
    Sketcher.Constraint("Coincident", 19, 3, -1, 1),
    Sketcher.Constraint("Coincident", 23, 3, -1, 1),
    Sketcher.Constraint("Coincident", 25, 3, -1, 1),
    Sketcher.Constraint("Equal", 11, 19),
    Sketcher.Constraint("Equal", 15, 23),
    Sketcher.Constraint("Symmetric", 12, 2, 20, 2, -2),
    Sketcher.Constraint("Symmetric", 9, 2, 17, 2, -1),
    Sketcher.Constraint("PointOnObject", 1, 2, -1),
    Sketcher.Constraint("PointOnObject", 3, 2, -2),
    Sketcher.Constraint("PointOnObject", 13, 2, -1),
    Sketcher.Constraint("PointOnObject", 15, 2, -2),
    Sketcher.Constraint("PointOnObject", 23, 2, -1),
    Sketcher.Constraint("Parallel", 1, 5),
    Sketcher.Constraint("Perpendicular", 10, 12),
    Sketcher.Constraint("Parallel", 9, 13),
    Sketcher.Constraint("Perpendicular", 8, 18),
    Sketcher.Constraint("Perpendicular", 18, 20),
    Sketcher.Constraint("Parallel", 17, 21),
    Sketcher.Constraint("Perpendicular", 12, 22),
    Sketcher.Constraint("Horizontal", 11, 2, 19, 2),
    Sketcher.Constraint("Equal", 14, 16),
    Sketcher.Constraint("Equal", 10, 12),
    Sketcher.Constraint("Equal", 9, 13),
    Sketcher.Constraint("Equal", 13, 17),
    Sketcher.Constraint("Equal", 17, 21),
    Sketcher.Constraint("Equal", 8, 22),
    Sketcher.Constraint("Angle", 8, Q("150 deg")),
    Sketcher.Constraint("Angle", 9, Q("75.000003 deg")),
    Sketcher.Constraint("Diameter", 25, 3.034808),
    Sketcher.Constraint("Radius", 11, 23.091221),
    Sketcher.Constraint("Radius", 15, 3.13855),
    Sketcher.Constraint("Radius", 24, 3.138542),
    Sketcher.Constraint("DistanceY", 4, 2, 4, 1, 2.6416),
    Sketcher.Constraint("Radius", 3, 23.091224),
    Sketcher.Constraint("DistanceY", 8, 2, 10, 2, 12.508399),
    Sketcher.Constraint("Distance", 9, 10.591309),
    Sketcher.Constraint("DistanceX", 2, 1, 2, 2, 2.630385),
    Sketcher.Constraint("DistanceX", -1, 1, 0, 2, 11.989142),
    Sketcher.Constraint("DistanceX", -1, 1, 6, 2, 1.38747),
    Sketcher.Constraint("DistanceY", 24, 3, 0, 2, 8.467052),
    Sketcher.Constraint("DistanceX", 24, 3, 5, 2, 6.752441),
    Sketcher.Constraint("DistanceX", 24, 2, 23, 2, 0.574871),
])
pad6 = body3.newObject("PartDesign::Pad", "Pad005")
pad6.Profile = sketch6
pad6.Length = 25
pad6.Reversed = True
body4 = doc.addObject("PartDesign::Body", "Body003")

# Sketch on XZ plane
sketch7 = body4.newObject("Sketcher::SketchObject", "Sketch006")
sketch7.AttachmentSupport = (doc.getObject("XZ_Plane003"), [""])
sketch7.MapMode = "FlatFace"
sketch7.addGeometry([
    Part.ArcOfCircle(Part.Circle(App.Vector(0, 0, 0), App.Vector(0, 0, 1), 3.1), math.radians(-60), math.radians(0)),  # 0
    Part.ArcOfCircle(Part.Circle(App.Vector(0, 0, 0), App.Vector(0, 0, 1), 3.1), math.radians(0), math.radians(35)),  # 1
    Part.LineSegment(App.Vector(2.6, 1.8, 0), App.Vector(12, 8.5, 0)),  # 2
    Part.LineSegment(App.Vector(12, 8.5, 0), App.Vector(20.5, 0, 0)),  # 3
    Part.LineSegment(App.Vector(20.5, 0, 0), App.Vector(23.1, 0, 0)),  # 4
    Part.ArcOfCircle(Part.Circle(App.Vector(0, 0, 0), App.Vector(0, 0, 1), 23.1), math.radians(0), math.radians(90)),  # 5
    Part.LineSegment(App.Vector(0, 23.1, 0), App.Vector(0, 20.4, 0)),  # 6
    Part.LineSegment(App.Vector(0, 20.4, 0), App.Vector(6.8, 13.7, 0)),  # 7
    Part.LineSegment(App.Vector(6.8, 13.7, 0), App.Vector(1.4, 2.8, 0)),  # 8
    Part.ArcOfCircle(Part.Circle(App.Vector(0, 0, 0), App.Vector(0, 0, 1), 3.1), math.radians(64), math.radians(150)),  # 9
    Part.LineSegment(App.Vector(-2.7, 1.6, 0), App.Vector(-13, 7.5, 0)),  # 10
    Part.LineSegment(App.Vector(-13, 7.5, 0), App.Vector(-10.2, 17.7, 0)),  # 11
    Part.LineSegment(App.Vector(-10.2, 17.7, 0), App.Vector(-11.5, 20, 0)),  # 12
    Part.ArcOfCircle(Part.Circle(App.Vector(0, 0, 0), App.Vector(0, 0, 1), 23.1), math.radians(120), math.radians(210)),  # 13
    Part.LineSegment(App.Vector(-20, -11.5, 0), App.Vector(-17.7, -10.2, 0)),  # 14
    Part.LineSegment(App.Vector(-17.7, -10.2, 0), App.Vector(-15, 0, 0)),  # 15
    Part.LineSegment(App.Vector(-15, 0, 0), App.Vector(-3.1, 0, 0)),  # 16
    Part.ArcOfCircle(Part.Circle(App.Vector(0, 0, 0), App.Vector(0, 0, 1), 3.1), math.radians(-180), math.radians(-90)),  # 17
    Part.LineSegment(App.Vector(0, -3.1, 0), App.Vector(0, -15, 0)),  # 18
    Part.LineSegment(App.Vector(0, -15, 0), App.Vector(-10.2, -17.7, 0)),  # 19
    Part.LineSegment(App.Vector(-10.2, -17.7, 0), App.Vector(-11.5, -20, 0)),  # 20
    Part.ArcOfCircle(Part.Circle(App.Vector(0, 0, 0), App.Vector(0, 0, 1), 23.1), math.radians(-120), math.radians(-30)),  # 21
    Part.LineSegment(App.Vector(20, -11.5, 0), App.Vector(17.7, -10.2, 0)),  # 22
    Part.LineSegment(App.Vector(17.7, -10.2, 0), App.Vector(7.5, -13, 0)),  # 23
    Part.LineSegment(App.Vector(7.5, -13, 0), App.Vector(1.6, -2.7, 0)),  # 24
    Part.Circle(App.Vector(0, 0, 0), App.Vector(0, 0, 1), 2.2),  # 25
], False)
sketch7.addConstraint([
    Sketcher.Constraint("Tangent", 0, 2, 1, 1),
    Sketcher.Constraint("Coincident", 1, 2, 2, 1),
    Sketcher.Constraint("Coincident", 2, 2, 3, 1),
    Sketcher.Constraint("Coincident", 3, 2, 4, 1),
    Sketcher.Constraint("Coincident", 4, 2, 5, 1),
    Sketcher.Constraint("Coincident", 5, 2, 6, 1),
    Sketcher.Constraint("Coincident", 6, 2, 7, 1),
    Sketcher.Constraint("Coincident", 7, 2, 8, 1),
    Sketcher.Constraint("Coincident", 8, 2, 9, 1),
    Sketcher.Constraint("Coincident", 9, 2, 10, 1),
    Sketcher.Constraint("Coincident", 10, 2, 11, 1),
    Sketcher.Constraint("Coincident", 11, 2, 12, 1),
    Sketcher.Constraint("Coincident", 12, 2, 13, 1),
    Sketcher.Constraint("Coincident", 13, 2, 14, 1),
    Sketcher.Constraint("Coincident", 14, 2, 15, 1),
    Sketcher.Constraint("Coincident", 15, 2, 16, 1),
    Sketcher.Constraint("Coincident", 16, 2, 17, 1),
    Sketcher.Constraint("Coincident", 17, 2, 18, 1),
    Sketcher.Constraint("Coincident", 18, 2, 19, 1),
    Sketcher.Constraint("Coincident", 19, 2, 20, 1),
    Sketcher.Constraint("Coincident", 20, 2, 21, 1),
    Sketcher.Constraint("Coincident", 21, 2, 22, 1),
    Sketcher.Constraint("Coincident", 22, 2, 23, 1),
    Sketcher.Constraint("Coincident", 23, 2, 24, 1),
    Sketcher.Constraint("Coincident", 24, 2, 0, 1),
    Sketcher.Constraint("Horizontal", 4),
    Sketcher.Constraint("Vertical", 6),
    Sketcher.Constraint("Horizontal", 16),
    Sketcher.Constraint("Vertical", 18),
    Sketcher.Constraint("Coincident", 0, 3, -1, 1),
    Sketcher.Constraint("Coincident", 5, 3, -1, 1),
    Sketcher.Constraint("Coincident", 9, 3, -1, 1),
    Sketcher.Constraint("Coincident", 13, 3, -1, 1),
    Sketcher.Constraint("Coincident", 17, 3, -1, 1),
    Sketcher.Constraint("Coincident", 21, 3, -1, 1),
    Sketcher.Constraint("Coincident", 25, 3, -1, 1),
    Sketcher.Constraint("Equal", 0, 9),
    Sketcher.Constraint("Equal", 0, 17),
    Sketcher.Constraint("Equal", 13, 21),
    Sketcher.Constraint("Symmetric", 14, 2, 22, 2, -2),
    Sketcher.Constraint("Symmetric", 11, 2, 19, 2, -1),
    Sketcher.Constraint("PointOnObject", 0, 2, -1),
    Sketcher.Constraint("PointOnObject", 3, 2, -1),
    Sketcher.Constraint("PointOnObject", 5, 2, -2),
    Sketcher.Constraint("PointOnObject", 15, 2, -1),
    Sketcher.Constraint("PointOnObject", 17, 2, -2),
    Sketcher.Constraint("Parallel", 3, 7),
    Sketcher.Constraint("Perpendicular", 12, 14),
    Sketcher.Constraint("Parallel", 11, 15),
    Sketcher.Constraint("Perpendicular", 10, 20),
    Sketcher.Constraint("Perpendicular", 20, 22),
    Sketcher.Constraint("Parallel", 19, 23),
    Sketcher.Constraint("Perpendicular", 14, 24),
    Sketcher.Constraint("Horizontal", 13, 2, 21, 2),
    Sketcher.Constraint("Equal", 16, 18),
    Sketcher.Constraint("Equal", 12, 14),
    Sketcher.Constraint("Equal", 11, 15),
    Sketcher.Constraint("Equal", 15, 19),
    Sketcher.Constraint("Equal", 19, 23),
    Sketcher.Constraint("Angle", 10, Q("150 deg")),
    Sketcher.Constraint("Angle", 11, Q("75.000003 deg")),
    Sketcher.Constraint("Radius", 0, 3.138549),
    Sketcher.Constraint("Radius", 1, 3.138542),
    Sketcher.Constraint("Radius", 13, 23.091221),
    Sketcher.Constraint("Diameter", 25, 4.488334),
    Sketcher.Constraint("DistanceY", 6, 2, 6, 1, 2.6416),
    Sketcher.Constraint("Radius", 5, 23.091224),
    Sketcher.Constraint("DistanceX", 0, 2, 7, 2, 3.613899),
    Sketcher.Constraint("DistanceY", 10, 2, 12, 2, 12.508399),
    Sketcher.Constraint("Distance", 11, 10.591309),
    Sketcher.Constraint("DistanceX", 4, 1, 4, 2, 2.630385),
    Sketcher.Constraint("DistanceX", -1, 1, 2, 2, 11.989142),
    Sketcher.Constraint("DistanceX", -1, 1, 8, 2, 1.38747),
    Sketcher.Constraint("DistanceX", 1, 2, 0, 2, 0.574871),
    Sketcher.Constraint("DistanceY", 1, 3, 2, 2, 8.467052),
])
pad7 = body4.newObject("PartDesign::Pad", "Pad006")
pad7.Profile = sketch7
pad7.Length = 25

doc.recompute()
